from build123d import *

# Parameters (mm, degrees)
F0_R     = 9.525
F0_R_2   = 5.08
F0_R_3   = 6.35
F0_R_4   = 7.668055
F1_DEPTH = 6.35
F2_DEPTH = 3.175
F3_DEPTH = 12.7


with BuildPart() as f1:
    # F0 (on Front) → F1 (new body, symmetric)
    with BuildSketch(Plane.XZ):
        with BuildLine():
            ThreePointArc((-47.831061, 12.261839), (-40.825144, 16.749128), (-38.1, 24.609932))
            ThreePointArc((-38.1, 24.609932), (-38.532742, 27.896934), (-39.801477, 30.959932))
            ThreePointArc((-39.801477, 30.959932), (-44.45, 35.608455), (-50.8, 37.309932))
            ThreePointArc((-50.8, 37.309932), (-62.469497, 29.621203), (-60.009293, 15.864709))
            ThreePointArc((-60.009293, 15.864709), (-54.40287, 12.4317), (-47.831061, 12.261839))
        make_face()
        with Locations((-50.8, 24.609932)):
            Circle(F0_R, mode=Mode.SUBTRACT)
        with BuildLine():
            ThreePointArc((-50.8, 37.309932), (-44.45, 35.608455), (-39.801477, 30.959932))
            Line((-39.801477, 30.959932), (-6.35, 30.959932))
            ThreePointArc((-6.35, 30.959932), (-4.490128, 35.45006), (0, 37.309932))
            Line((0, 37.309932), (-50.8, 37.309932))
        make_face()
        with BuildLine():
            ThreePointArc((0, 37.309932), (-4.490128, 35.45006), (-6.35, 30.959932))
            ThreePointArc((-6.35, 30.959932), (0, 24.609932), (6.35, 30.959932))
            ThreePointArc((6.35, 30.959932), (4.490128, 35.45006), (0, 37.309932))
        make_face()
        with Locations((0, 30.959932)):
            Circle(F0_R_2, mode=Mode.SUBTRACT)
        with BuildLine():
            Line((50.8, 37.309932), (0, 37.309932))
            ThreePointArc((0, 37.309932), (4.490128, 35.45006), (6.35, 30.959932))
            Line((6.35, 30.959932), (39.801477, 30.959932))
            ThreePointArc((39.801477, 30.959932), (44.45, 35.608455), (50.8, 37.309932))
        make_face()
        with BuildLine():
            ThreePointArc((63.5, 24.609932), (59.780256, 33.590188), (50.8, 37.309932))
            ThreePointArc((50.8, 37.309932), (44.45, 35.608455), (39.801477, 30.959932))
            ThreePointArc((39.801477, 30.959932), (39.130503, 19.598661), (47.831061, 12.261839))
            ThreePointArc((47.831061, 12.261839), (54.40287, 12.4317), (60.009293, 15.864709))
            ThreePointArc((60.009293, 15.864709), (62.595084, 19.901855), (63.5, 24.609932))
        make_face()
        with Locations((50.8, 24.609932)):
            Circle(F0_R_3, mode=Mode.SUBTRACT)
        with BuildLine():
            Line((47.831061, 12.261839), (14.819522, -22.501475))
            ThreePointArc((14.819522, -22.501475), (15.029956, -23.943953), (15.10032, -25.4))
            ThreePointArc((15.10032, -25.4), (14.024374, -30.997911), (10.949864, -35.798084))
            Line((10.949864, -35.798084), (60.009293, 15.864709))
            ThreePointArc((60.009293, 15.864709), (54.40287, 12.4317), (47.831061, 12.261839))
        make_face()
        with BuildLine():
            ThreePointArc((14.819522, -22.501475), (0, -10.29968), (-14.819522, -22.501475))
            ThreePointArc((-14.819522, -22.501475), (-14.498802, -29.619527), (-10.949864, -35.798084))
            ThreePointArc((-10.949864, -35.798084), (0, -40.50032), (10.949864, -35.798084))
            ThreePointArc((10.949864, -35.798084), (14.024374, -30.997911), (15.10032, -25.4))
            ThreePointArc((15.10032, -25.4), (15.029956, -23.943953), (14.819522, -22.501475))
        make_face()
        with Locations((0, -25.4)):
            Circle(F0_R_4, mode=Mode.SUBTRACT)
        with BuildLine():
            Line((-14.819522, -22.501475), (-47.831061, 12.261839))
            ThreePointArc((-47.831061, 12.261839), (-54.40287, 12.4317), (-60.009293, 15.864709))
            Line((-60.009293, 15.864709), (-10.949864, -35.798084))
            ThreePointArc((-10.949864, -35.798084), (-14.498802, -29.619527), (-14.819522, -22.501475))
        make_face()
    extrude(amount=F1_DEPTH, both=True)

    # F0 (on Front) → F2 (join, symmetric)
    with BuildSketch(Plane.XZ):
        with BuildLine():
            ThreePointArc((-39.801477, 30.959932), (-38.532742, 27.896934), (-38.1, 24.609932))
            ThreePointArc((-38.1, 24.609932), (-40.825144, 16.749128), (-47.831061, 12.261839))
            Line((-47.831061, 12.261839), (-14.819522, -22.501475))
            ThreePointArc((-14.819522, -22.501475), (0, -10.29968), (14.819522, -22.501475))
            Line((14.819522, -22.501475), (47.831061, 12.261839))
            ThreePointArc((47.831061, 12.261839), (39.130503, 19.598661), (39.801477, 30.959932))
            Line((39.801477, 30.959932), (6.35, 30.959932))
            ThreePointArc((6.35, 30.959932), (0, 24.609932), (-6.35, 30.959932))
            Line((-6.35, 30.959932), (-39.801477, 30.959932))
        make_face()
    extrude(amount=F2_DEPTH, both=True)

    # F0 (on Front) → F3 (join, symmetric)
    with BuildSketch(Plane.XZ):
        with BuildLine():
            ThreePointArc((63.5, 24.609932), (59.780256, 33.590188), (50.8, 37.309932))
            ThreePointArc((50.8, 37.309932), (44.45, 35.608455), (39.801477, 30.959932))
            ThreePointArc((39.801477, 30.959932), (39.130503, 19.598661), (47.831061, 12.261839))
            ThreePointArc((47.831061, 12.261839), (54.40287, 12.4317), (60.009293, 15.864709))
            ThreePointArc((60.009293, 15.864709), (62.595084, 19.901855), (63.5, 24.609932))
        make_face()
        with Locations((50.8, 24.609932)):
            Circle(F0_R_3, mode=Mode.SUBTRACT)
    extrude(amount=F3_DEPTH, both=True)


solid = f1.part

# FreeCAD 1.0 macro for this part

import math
import FreeCAD as App
import Part
import Sketcher
Q = App.Units.Quantity

doc = App.newDocument("Part")
body = doc.addObject("PartDesign::Body", "Body")

# Sketch on XZ plane
sketch1 = body.newObject("Sketcher::SketchObject", "Sketch")
sketch1.AttachmentSupport = (doc.getObject("XZ_Plane"), [""])
sketch1.MapMode = "FlatFace"
sketch1.addGeometry([
    Part.ArcOfCircle(Part.Circle(App.Vector(-51, 25, 0), App.Vector(0, 0, 1), 13), math.radians(90), math.radians(224)),  # 0
    Part.LineSegment(App.Vector(-60, 16, 0), App.Vector(-11, -36, 0)),  # 1
    Part.ArcOfCircle(Part.Circle(App.Vector(0, -25, 0), App.Vector(0, 0, 1), 15), math.radians(-136), math.radians(-44)),  # 2
    Part.LineSegment(App.Vector(11, -36, 0), App.Vector(60, 16, 0)),  # 3
    Part.ArcOfCircle(Part.Circle(App.Vector(51, 25, 0), App.Vector(0, 0, 1), 13), math.radians(-44), math.radians(0)),  # 4
    Part.ArcOfCircle(Part.Circle(App.Vector(51, 25, 0), App.Vector(0, 0, 1), 13), math.radians(0), math.radians(90)),  # 5
    Part.LineSegment(App.Vector(51, 37, 0), App.Vector(-51, 37, 0)),  # 6
    Part.ArcOfCircle(Part.Circle(App.Vector(-51, 25, 0), App.Vector(0, 0, 1), 13), math.radians(-76), math.radians(0)),  # 7
    Part.ArcOfCircle(Part.Circle(App.Vector(-51, 25, 0), App.Vector(0, 0, 1), 13), math.radians(0), math.radians(30)),  # 8
    Part.LineSegment(App.Vector(-40, 31, 0), App.Vector(-6, 31, 0)),  # 9
    Part.ArcOfCircle(Part.Circle(App.Vector(0, 31, 0), App.Vector(0, 0, 1), 6), math.radians(180), math.radians(360)),  # 10
    Part.LineSegment(App.Vector(6, 31, 0), App.Vector(40, 31, 0)),  # 11
    Part.ArcOfCircle(Part.Circle(App.Vector(51, 25, 0), App.Vector(0, 0, 1), 13), math.radians(150), math.radians(256)),  # 12
    Part.LineSegment(App.Vector(48, 12, 0), App.Vector(15, -23, 0)),  # 13
    Part.ArcOfCircle(Part.Circle(App.Vector(0, -25, 0), App.Vector(0, 0, 1), 15), math.radians(11), math.radians(169)),  # 14
    Part.LineSegment(App.Vector(-15, -23, 0), App.Vector(-48, 12, 0)),  # 15
    Part.Circle(App.Vector(0, -25, 0), App.Vector(0, 0, 1), 8),  # 16
    Part.Circle(App.Vector(-51, 25, 0), App.Vector(0, 0, 1), 10),  # 17
    Part.Circle(App.Vector(0, 31, 0), App.Vector(0, 0, 1), 5),  # 18
    Part.Circle(App.Vector(51, 25, 0), App.Vector(0, 0, 1), 6),  # 19
], False)
sketch1.addConstraint([
    Sketcher.Constraint("Tangent", 0, 2, 1, 1),
    Sketcher.Constraint("Tangent", 1, 2, 2, 1),
    Sketcher.Constraint("Tangent", 2, 2, 3, 1),
    Sketcher.Constraint("Tangent", 3, 2, 4, 1),
    Sketcher.Constraint("Tangent", 4, 2, 5, 1),
    Sketcher.Constraint("Tangent", 5, 2, 6, 1),
    Sketcher.Constraint("Tangent", 6, 2, 0, 1),
    Sketcher.Constraint("Tangent", 7, 2, 8, 1),
    Sketcher.Constraint("Coincident", 8, 2, 9, 1),
    Sketcher.Constraint("Coincident", 9, 2, 10, 1),
    Sketcher.Constraint("Coincident", 10, 2, 11, 1),
    Sketcher.Constraint("Coincident", 11, 2, 12, 1),
    Sketcher.Constraint("Coincident", 12, 2, 13, 1),
    Sketcher.Constraint("Coincident", 13, 2, 14, 1),
    Sketcher.Constraint("Coincident", 14, 2, 15, 1),
    Sketcher.Constraint("Coincident", 15, 2, 7, 1),
    Sketcher.Constraint("Horizontal", 6),
    Sketcher.Constraint("Horizontal", 9),
    Sketcher.Constraint("Horizontal", 11),
    Sketcher.Constraint("Coincident", 7, 3, 0, 3),
    Sketcher.Constraint("Coincident", 12, 3, 4, 3),
    Sketcher.Constraint("Coincident", 14, 3, 2, 3),
    Sketcher.Constraint("Coincident", 16, 3, 2, 3),
    Sketcher.Constraint("Coincident", 17, 3, 0, 3),
    Sketcher.Constraint("Coincident", 18, 3, 10, 3),
    Sketcher.Constraint("Coincident", 19, 3, 4, 3),
    Sketcher.Constraint("Equal", 0, 5),
    Sketcher.Constraint("Equal", 5, 7),
    Sketcher.Constraint("Equal", 4, 8),
    Sketcher.Constraint("Equal", 7, 12),
    Sketcher.Constraint("Equal", 2, 14),
    Sketcher.Constraint("Equal", 10, 19),
    Sketcher.Constraint("Symmetric", 1, 2, 2, 2, -2),
    Sketcher.Constraint("Symmetric", 9, 2, 10, 2, -2),
    Sketcher.Constraint("Symmetric", 12, 2, 15, 2, -2),
    Sketcher.Constraint("Parallel", 3, 13),
    Sketcher.Constraint("Parallel", 1, 15),
    Sketcher.Constraint("Horizontal", 19, 3, 4, 2),
    Sketcher.Constraint("Horizontal", 4, 2, 7, 2),
    Sketcher.Constraint("Horizontal", 18, 3, 8, 2),
    Sketcher.Constraint("Diameter", 18, Q("0.4 in")),
    Sketcher.Constraint("Diameter", 19, Q("0.5 in")),
    Sketcher.Constraint("Radius", 0, Q("0.5 in")),
    Sketcher.Constraint("Diameter", 17, Q("0.75 in")),
    Sketcher.Constraint("DistanceX", 6, 2, 6, 1, Q("4 in")),
    Sketcher.Constraint("DistanceY", 2, 3, -1, 1, Q("1 in")),
    Sketcher.Constraint("DistanceY", 4, 3, 10, 3, Q("0.25 in")),
    Sketcher.Constraint("Diameter", 16, 15.33611),
    Sketcher.Constraint("Radius", 2, 15.100321),
    Sketcher.Constraint("DistanceY", 0, 2, 8, 3, Q("0.3443001 in")),
    Sketcher.Constraint("DistanceX", -1, 1, 12, 2, 47.831061),
])
pad1 = body.newObject("PartDesign::Pad", "Pad")
pad1.Profile = sketch1
pad1.Length = Q("0.5 in")
pad1.Midplane = True

# Sketch on XZ plane
sketch2 = body.newObject("Sketcher::SketchObject", "Sketch001")
sketch2.AttachmentSupport = (doc.getObject("XZ_Plane"), [""])
sketch2.MapMode = "FlatFace"
sketch2.addGeometry([
    Part.ArcOfCircle(Part.Circle(App.Vector(-51, 25, 0), App.Vector(0, 0, 1), 13), math.radians(0), math.radians(30)),  # 0
    Part.ArcOfCircle(Part.Circle(App.Vector(-51, 25, 0), App.Vector(0, 0, 1), 13), math.radians(-76), math.radians(0)),  # 1
    Part.LineSegment(App.Vector(-48, 12, 0), App.Vector(-15, -23, 0)),  # 2
    Part.ArcOfCircle(Part.Circle(App.Vector(0, -25, 0), App.Vector(0, 0, 1), 15), math.radians(11), math.radians(169)),  # 3
    Part.LineSegment(App.Vector(15, -23, 0), App.Vector(48, 12, 0)),  # 4
    Part.ArcOfCircle(Part.Circle(App.Vector(51, 25, 0), App.Vector(0, 0, 1), 13), math.radians(150), math.radians(256)),  # 5
    Part.LineSegment(App.Vector(40, 31, 0), App.Vector(6, 31, 0)),  # 6
    Part.ArcOfCircle(Part.Circle(App.Vector(0, 31, 0), App.Vector(0, 0, 1), 6), math.radians(180), math.radians(360)),  # 7
    Part.LineSegment(App.Vector(-6, 31, 0), App.Vector(-40, 31, 0)),  # 8
], False)
sketch2.addConstraint([
    Sketcher.Constraint("Tangent", 0, 1, 1, 2),
    Sketcher.Constraint("Coincident", 1, 1, 2, 1),
    Sketcher.Constraint("Coincident", 2, 2, 3, 2),
    Sketcher.Constraint("Coincident", 3, 1, 4, 1),
    Sketcher.Constraint("Coincident", 4, 2, 5, 2),
    Sketcher.Constraint("Coincident", 5, 1, 6, 1),
    Sketcher.Constraint("Coincident", 6, 2, 7, 2),
    Sketcher.Constraint("Coincident", 7, 1, 8, 1),
    Sketcher.Constraint("Coincident", 8, 2, 0, 2),
    Sketcher.Constraint("Horizontal", 6),
    Sketcher.Constraint("Horizontal", 8),
    Sketcher.Constraint("Equal", 1, 5),
    Sketcher.Constraint("Symmetric", 0, 3, 5, 3, -2),
    Sketcher.Constraint("Symmetric", 2, 2, 3, 1, -2),
    Sketcher.Constraint("Symmetric", 1, 1, 4, 2, -2),
    Sketcher.Constraint("Symmetric", 6, 2, 7, 1, -2),
    Sketcher.Constraint("Horizontal", 5, 3, 0, 1),
    Sketcher.Constraint("Horizontal", 7, 3, 5, 1),
    Sketcher.Constraint("Radius", 0, Q("0.5000001 in")),
    Sketcher.Constraint("Radius", 7, Q("0.25 in")),
    Sketcher.Constraint("DistanceX", 0, 3, -1, 1, Q("2.0000001 in")),
    Sketcher.Constraint("DistanceY", 3, 3, -1, 1, Q("1 in")),
    Sketcher.Constraint("DistanceY", 5, 3, 7, 3, Q("0.25 in")),
    Sketcher.Constraint("Radius", 3, 15.100321),
    Sketcher.Constraint("DistanceY", -1, 1, 0, 3, 24.609932),
    Sketcher.Constraint("DistanceX", 1, 1, -1, 1, 47.831061),
    Sketcher.Constraint("DistanceX", 2, 2, -1, 1, 14.819522),
])
pad2 = body.newObject("PartDesign::Pad", "Pad001")
pad2.Profile = sketch2
pad2.Length = Q("0.25 in")
pad2.Midplane = True

# Sketch on XZ plane
sketch3 = body.newObject("Sketcher::SketchObject", "Sketch002")
sketch3.AttachmentSupport = (doc.getObject("XZ_Plane"), [""])
sketch3.MapMode = "FlatFace"
sketch3.addGeometry([
    Part.ArcOfCircle(Part.Circle(App.Vector(51, 25, 0), App.Vector(0, 0, 1), 13), math.radians(0), math.radians(90)),  # 0
    Part.ArcOfCircle(Part.Circle(App.Vector(51, 25, 0), App.Vector(0, 0, 1), 13), math.radians(90), math.radians(150)),  # 1
    Part.ArcOfCircle(Part.Circle(App.Vector(51, 25, 0), App.Vector(0, 0, 1), 13), math.radians(150), math.radians(256)),  # 2
    Part.ArcOfCircle(Part.Circle(App.Vector(51, 25, 0), App.Vector(0, 0, 1), 13), math.radians(-104), math.radians(-44)),  # 3
    Part.ArcOfCircle(Part.Circle(App.Vector(51, 25, 0), App.Vector(0, 0, 1), 13), math.radians(-44), math.radians(0)),  # 4
    Part.Circle(App.Vector(51, 25, 0), App.Vector(0, 0, 1), 6),  # 5
], False)
sketch3.addConstraint([
    Sketcher.Constraint("Tangent", 0, 2, 1, 1),
    Sketcher.Constraint("Tangent", 1, 2, 2, 1),
    Sketcher.Constraint("Tangent", 2, 2, 3, 1),
    Sketcher.Constraint("Tangent", 3, 2, 4, 1),
    Sketcher.Constraint("Tangent", 4, 2, 0, 1),
    Sketcher.Constraint("Coincident", 2, 3, 0, 3),
    Sketcher.Constraint("Coincident", 5, 3, 0, 3),
    Sketcher.Constraint("Horizontal", 5, 3, 4, 2),
    Sketcher.Constraint("Vertical", 5, 3, 0, 2),
    Sketcher.Constraint("Diameter", 5, Q("0.5 in")),
    Sketcher.Constraint("Radius", 0, Q("0.5 in")),
    Sketcher.Constraint("DistanceX", -1, 1, 0, 3, Q("2 in")),
    Sketcher.Constraint("DistanceY", 4, 3, 1, 2, Q("0.25 in")),
    Sketcher.Constraint("DistanceY", 3, 2, 3, 3, Q("0.3443001 in")),
    Sketcher.Constraint("DistanceY", -1, 1, 0, 3, 24.609932),
    Sketcher.Constraint("DistanceX", -1, 1, 2, 2, 47.831061),
])
pad3 = body.newObject("PartDesign::Pad", "Pad002")
pad3.Profile = sketch3
pad3.Length = Q("1 in")
pad3.Midplane = True

doc.recompute()
